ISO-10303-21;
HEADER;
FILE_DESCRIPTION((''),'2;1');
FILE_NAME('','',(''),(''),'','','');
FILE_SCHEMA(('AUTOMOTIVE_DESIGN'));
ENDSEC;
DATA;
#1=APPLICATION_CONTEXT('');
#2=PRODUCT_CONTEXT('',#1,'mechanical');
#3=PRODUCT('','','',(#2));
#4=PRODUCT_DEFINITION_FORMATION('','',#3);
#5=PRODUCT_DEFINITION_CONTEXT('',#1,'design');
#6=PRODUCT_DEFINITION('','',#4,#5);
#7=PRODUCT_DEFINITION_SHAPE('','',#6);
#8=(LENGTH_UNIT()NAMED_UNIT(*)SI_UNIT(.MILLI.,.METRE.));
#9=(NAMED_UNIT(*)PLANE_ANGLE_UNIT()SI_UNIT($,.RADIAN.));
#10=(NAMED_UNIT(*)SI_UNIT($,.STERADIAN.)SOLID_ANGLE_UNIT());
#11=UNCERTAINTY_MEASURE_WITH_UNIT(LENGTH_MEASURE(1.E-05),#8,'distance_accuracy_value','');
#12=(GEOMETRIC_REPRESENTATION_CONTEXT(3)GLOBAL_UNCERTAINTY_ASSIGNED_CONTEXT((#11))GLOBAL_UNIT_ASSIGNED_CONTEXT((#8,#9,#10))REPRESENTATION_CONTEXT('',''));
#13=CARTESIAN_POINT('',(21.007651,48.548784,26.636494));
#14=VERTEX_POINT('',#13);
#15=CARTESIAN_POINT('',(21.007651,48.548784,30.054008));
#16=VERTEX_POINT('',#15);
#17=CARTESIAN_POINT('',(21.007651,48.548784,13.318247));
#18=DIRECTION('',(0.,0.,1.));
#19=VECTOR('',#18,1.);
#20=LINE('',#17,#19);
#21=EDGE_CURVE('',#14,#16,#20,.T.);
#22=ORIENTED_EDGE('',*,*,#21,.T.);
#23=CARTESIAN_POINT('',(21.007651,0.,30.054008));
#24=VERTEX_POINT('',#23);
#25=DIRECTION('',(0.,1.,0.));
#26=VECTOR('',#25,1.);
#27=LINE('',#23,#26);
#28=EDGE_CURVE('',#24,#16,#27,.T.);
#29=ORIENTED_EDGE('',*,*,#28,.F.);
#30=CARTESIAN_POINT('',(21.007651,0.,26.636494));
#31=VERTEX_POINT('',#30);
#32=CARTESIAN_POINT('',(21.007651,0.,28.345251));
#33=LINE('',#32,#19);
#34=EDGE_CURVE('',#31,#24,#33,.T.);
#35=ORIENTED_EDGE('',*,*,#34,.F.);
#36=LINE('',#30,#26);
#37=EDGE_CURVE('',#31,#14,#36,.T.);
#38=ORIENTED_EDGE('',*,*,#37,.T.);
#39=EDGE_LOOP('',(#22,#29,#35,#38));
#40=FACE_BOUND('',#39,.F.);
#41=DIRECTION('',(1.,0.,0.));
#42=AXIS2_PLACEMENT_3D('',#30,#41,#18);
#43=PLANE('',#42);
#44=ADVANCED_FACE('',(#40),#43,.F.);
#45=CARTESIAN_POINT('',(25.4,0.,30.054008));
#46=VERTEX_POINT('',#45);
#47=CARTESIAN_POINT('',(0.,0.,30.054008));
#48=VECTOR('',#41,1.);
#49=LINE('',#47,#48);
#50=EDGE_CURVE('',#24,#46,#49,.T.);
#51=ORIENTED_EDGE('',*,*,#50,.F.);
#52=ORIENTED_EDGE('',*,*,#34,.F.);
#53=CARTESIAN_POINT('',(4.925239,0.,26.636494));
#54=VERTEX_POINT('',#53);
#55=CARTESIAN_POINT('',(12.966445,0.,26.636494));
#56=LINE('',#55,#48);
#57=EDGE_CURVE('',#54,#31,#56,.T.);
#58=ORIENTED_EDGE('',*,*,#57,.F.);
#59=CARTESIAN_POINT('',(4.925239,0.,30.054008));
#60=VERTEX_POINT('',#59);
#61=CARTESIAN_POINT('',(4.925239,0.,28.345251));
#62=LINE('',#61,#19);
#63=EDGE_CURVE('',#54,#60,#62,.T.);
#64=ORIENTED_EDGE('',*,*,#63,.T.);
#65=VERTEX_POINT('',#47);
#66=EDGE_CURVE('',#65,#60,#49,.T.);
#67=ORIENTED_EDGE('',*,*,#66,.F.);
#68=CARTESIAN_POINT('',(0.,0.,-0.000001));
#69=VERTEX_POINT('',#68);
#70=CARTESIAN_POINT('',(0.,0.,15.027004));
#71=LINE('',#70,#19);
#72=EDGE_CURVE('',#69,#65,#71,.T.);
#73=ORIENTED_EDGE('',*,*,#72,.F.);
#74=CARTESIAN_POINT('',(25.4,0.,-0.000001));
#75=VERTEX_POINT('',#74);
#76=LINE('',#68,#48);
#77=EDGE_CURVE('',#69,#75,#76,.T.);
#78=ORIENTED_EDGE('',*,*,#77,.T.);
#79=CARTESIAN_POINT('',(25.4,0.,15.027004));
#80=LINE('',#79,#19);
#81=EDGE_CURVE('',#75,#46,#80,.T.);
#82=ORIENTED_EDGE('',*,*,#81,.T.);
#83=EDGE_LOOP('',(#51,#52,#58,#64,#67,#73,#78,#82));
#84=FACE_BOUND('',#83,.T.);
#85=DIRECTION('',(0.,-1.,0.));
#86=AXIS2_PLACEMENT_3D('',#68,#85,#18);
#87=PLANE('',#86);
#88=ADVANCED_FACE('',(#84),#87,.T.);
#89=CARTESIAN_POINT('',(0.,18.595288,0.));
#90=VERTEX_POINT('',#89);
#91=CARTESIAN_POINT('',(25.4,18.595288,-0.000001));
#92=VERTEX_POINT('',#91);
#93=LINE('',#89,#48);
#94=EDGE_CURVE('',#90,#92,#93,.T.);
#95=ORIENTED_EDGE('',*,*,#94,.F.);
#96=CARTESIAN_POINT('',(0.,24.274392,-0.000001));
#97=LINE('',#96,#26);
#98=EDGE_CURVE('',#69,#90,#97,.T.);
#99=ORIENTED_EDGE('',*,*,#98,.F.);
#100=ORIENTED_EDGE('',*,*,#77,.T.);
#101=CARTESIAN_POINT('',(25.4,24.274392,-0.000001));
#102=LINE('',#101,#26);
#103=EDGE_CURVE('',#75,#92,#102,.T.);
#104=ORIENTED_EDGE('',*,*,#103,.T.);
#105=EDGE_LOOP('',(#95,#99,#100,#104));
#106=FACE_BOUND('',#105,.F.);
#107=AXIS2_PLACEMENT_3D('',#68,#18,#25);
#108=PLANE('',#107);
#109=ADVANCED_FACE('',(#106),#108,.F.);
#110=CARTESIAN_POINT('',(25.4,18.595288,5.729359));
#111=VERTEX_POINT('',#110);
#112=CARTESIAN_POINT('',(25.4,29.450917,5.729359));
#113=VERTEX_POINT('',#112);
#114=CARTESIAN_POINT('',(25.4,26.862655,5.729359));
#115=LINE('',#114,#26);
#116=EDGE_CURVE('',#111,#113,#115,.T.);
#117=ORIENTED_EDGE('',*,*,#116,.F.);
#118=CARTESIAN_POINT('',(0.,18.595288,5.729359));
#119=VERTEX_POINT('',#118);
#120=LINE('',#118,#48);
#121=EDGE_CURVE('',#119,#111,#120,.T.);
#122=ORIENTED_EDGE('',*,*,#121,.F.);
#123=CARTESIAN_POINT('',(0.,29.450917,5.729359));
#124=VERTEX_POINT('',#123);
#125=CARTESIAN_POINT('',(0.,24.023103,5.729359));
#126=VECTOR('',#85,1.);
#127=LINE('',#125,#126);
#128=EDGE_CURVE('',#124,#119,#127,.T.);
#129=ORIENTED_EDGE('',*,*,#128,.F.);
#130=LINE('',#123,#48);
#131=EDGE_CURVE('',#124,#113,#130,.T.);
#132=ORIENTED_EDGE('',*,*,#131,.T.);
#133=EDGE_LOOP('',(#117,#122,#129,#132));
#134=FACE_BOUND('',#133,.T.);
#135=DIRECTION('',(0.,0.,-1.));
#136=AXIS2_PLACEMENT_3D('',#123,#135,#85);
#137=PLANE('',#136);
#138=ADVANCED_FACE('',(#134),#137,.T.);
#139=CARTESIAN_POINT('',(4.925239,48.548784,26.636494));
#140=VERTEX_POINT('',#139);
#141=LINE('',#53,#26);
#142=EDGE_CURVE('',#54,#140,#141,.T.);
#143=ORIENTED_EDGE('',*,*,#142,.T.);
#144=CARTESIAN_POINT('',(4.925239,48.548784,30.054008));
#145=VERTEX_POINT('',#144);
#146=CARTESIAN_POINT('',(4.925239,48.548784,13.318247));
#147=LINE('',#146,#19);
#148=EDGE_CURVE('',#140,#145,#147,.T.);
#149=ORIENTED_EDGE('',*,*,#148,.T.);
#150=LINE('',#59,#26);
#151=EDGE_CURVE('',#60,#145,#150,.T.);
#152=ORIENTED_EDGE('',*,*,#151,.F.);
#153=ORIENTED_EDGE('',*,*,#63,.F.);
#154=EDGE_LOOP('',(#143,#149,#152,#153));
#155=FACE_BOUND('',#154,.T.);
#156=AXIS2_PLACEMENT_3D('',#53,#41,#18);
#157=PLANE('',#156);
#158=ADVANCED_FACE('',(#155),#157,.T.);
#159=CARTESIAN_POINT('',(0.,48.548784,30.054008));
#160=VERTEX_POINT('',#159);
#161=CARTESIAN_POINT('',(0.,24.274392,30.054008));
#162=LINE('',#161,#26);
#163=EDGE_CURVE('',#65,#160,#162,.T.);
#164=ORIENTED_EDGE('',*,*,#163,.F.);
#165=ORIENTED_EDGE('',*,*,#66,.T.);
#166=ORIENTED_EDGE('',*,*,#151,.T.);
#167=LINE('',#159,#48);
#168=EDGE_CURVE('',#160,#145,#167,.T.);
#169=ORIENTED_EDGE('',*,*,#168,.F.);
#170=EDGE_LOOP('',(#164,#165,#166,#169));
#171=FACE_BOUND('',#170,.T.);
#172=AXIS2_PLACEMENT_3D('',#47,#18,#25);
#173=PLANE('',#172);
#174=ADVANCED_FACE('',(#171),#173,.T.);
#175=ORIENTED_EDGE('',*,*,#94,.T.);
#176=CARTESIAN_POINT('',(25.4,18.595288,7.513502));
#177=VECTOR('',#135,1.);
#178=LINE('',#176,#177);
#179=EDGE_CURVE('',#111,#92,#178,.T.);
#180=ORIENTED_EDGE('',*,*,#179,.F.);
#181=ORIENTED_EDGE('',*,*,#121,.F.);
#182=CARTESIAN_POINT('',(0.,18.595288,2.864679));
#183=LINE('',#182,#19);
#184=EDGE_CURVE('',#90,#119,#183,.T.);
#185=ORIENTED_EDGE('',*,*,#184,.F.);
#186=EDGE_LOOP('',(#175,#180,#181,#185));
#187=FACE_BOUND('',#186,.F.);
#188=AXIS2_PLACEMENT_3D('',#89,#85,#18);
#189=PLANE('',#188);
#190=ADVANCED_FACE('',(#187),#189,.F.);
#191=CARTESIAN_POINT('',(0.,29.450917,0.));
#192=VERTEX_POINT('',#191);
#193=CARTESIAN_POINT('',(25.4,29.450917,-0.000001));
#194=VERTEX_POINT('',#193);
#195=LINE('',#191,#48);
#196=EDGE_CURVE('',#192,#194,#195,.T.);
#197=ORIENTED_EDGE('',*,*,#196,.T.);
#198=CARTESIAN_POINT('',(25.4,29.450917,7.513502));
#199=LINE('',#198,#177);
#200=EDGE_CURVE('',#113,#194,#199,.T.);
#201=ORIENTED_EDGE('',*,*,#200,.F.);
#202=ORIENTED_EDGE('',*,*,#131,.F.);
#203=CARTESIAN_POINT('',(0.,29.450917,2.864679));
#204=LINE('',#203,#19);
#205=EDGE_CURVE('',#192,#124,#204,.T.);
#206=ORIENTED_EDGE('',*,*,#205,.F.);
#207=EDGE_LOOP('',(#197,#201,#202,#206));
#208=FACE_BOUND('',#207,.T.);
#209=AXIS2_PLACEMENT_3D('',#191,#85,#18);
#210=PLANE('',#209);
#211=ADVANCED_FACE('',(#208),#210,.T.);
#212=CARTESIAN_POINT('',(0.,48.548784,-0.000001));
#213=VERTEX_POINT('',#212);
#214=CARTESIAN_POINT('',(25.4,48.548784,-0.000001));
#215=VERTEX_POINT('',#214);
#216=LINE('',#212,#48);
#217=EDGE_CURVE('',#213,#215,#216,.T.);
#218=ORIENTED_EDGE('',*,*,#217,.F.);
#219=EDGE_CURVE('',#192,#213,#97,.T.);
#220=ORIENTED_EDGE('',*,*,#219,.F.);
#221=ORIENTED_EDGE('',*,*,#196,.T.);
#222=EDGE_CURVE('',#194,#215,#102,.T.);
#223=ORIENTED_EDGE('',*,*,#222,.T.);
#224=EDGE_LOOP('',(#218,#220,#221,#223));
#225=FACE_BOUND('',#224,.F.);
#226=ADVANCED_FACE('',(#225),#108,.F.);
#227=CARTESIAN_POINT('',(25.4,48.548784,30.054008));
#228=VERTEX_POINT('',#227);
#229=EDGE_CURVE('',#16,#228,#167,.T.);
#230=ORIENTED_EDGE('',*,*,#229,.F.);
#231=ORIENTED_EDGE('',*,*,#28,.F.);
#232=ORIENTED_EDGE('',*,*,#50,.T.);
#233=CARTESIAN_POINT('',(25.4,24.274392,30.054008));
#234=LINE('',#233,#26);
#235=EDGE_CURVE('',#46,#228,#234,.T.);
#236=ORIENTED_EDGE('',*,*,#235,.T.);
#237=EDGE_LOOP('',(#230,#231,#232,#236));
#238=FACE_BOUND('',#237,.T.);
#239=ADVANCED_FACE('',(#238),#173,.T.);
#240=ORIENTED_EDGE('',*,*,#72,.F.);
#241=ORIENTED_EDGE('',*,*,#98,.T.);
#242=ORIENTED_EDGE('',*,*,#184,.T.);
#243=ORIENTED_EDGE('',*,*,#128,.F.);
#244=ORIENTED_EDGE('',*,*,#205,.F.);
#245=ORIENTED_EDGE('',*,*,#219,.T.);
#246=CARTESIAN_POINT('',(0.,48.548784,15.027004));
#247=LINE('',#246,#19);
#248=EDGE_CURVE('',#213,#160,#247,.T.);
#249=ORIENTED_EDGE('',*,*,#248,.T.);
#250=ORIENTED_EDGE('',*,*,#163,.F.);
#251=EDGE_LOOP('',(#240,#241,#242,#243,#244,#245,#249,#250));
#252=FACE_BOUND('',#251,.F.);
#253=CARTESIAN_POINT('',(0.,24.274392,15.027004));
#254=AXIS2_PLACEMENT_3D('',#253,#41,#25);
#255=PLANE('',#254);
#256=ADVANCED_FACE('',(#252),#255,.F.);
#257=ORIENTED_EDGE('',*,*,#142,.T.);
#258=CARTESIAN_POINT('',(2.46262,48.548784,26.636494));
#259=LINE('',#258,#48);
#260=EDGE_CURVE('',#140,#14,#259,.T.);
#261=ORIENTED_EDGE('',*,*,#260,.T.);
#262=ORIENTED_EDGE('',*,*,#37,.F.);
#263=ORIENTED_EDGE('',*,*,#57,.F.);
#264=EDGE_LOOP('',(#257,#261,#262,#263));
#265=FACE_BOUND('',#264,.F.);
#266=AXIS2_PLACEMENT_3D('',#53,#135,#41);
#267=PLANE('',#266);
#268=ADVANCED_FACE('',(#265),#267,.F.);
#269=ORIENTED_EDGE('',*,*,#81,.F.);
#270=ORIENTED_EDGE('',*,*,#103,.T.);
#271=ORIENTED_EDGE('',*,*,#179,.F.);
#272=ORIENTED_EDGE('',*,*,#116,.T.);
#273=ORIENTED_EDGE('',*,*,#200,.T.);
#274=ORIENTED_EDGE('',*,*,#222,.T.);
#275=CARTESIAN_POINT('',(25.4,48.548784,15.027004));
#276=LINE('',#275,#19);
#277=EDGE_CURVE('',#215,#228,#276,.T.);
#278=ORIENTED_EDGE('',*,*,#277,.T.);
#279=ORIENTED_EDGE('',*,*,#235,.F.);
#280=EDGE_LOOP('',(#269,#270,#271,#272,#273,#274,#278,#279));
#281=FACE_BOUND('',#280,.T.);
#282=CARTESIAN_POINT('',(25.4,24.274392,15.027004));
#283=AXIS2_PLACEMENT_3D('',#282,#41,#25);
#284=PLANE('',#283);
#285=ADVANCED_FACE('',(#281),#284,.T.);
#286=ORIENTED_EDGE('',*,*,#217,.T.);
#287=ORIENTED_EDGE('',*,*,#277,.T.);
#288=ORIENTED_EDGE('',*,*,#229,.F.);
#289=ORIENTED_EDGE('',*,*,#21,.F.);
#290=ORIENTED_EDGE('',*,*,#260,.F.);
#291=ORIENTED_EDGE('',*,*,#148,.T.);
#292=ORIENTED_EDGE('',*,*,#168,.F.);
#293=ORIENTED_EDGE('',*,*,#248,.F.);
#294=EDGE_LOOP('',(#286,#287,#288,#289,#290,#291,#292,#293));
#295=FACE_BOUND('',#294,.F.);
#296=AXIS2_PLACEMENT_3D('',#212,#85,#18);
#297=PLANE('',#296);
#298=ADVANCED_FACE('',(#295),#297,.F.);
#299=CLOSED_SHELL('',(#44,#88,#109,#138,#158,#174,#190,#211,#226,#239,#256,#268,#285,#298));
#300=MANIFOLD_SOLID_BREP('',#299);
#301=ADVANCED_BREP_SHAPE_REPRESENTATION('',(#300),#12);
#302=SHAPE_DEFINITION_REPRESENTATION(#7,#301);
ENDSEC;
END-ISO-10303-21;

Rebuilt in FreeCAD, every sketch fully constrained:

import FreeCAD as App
import Part
import Sketcher
Q = App.Units.Quantity


def add_polygon(sketch, points):
    """Adds a closed chain of lines whose ends are joined by coincident constraints."""
    first, n = sketch.GeometryCount, len(points)
    for a, b in zip(points, points[1:] + points[:1]):
        sketch.addGeometry(Part.LineSegment(App.Vector(*a, 0), App.Vector(*b, 0)), False)
    for i in range(n):
        sketch.addConstraint(Sketcher.Constraint("Coincident", first + i, 2, first + (i + 1) % n, 1))

doc = App.newDocument("Part")
body = doc.addObject("PartDesign::Body", "Body")

# Sketch on YZ plane
sketch1 = body.newObject("Sketcher::SketchObject", "Sketch")
sketch1.AttachmentSupport = (doc.getObject("YZ_Plane"), [""])
sketch1.MapMode = "FlatFace"
add_polygon(sketch1, [(0, 30), (0, 0), (49, 0), (49, 30)])  # lines 0-3
sketch1.addConstraint([
    Sketcher.Constraint("Vertical", 0),
    Sketcher.Constraint("Horizontal", 1),
    Sketcher.Constraint("Vertical", 2),
    Sketcher.Constraint("Horizontal", 3),
    Sketcher.Constraint("Coincident", 0, 2, -1, 1),
    Sketcher.Constraint("DistanceY", 0, 2, 0, 1, Q("30.054009 mm")),
    Sketcher.Constraint("DistanceX", 1, 1, 1, 2, Q("48.548784 mm")),
])
pad1 = body.newObject("PartDesign::Pad", "Pad")
pad1.Profile = sketch1
pad1.Length = Q("1 in")

# Sketch on XZ plane
sketch2 = body.newObject("Sketcher::SketchObject", "Sketch001")
sketch2.AttachmentSupport = (doc.getObject("XZ_Plane"), [""])
sketch2.MapMode = "FlatFace"
add_polygon(sketch2, [(4.9, 30.1), (4.9, 26.6), (21, 26.6), (21, 30.1)])  # lines 0-3
sketch2.addConstraint([
    Sketcher.Constraint("Vertical", 0),
    Sketcher.Constraint("Horizontal", 1),
    Sketcher.Constraint("Vertical", 2),
    Sketcher.Constraint("Horizontal", 3),
    Sketcher.Constraint("DistanceX", 1, 1, 1, 2, Q("16.082412 mm")),
    Sketcher.Constraint("DistanceY", 0, 2, 0, 1, Q("3.417515 mm")),
    Sketcher.Constraint("DistanceX", -1, 1, 0, 2, Q("4.925239 mm")),
    Sketcher.Constraint("DistanceY", -1, 1, 2, 2, Q("30.054008 mm")),
])
pocket1 = body.newObject("PartDesign::Pocket", "Pocket")
pocket1.Profile = sketch2
pocket1.Length = Q("2 in")

# Sketch on YZ plane
sketch3 = body.newObject("Sketcher::SketchObject", "Sketch002")
sketch3.AttachmentSupport = (doc.getObject("YZ_Plane"), [""])
sketch3.MapMode = "FlatFace"
add_polygon(sketch3, [(29, 6), (29, 0), (19, 0), (19, 6)])  # lines 0-3
sketch3.addConstraint([
    Sketcher.Constraint("Vertical", 0),
    Sketcher.Constraint("Horizontal", 1),
    Sketcher.Constraint("Vertical", 2),
    Sketcher.Constraint("Horizontal", 3),
    Sketcher.Constraint("PointOnObject", 0, 2, -1),
    Sketcher.Constraint("DistanceX", 1, 2, 1, 1, Q("10.855629 mm")),
    Sketcher.Constraint("DistanceY", 0, 2, 0, 1, Q("5.729359 mm")),
    Sketcher.Constraint("DistanceX", -1, 1, 1, 2, Q("18.595288 mm")),
])
pocket2 = body.newObject("PartDesign::Pocket", "Pocket001")
pocket2.Profile = sketch3
pocket2.Length = Q("2 in")
pocket2.Reversed = True

doc.recompute()
